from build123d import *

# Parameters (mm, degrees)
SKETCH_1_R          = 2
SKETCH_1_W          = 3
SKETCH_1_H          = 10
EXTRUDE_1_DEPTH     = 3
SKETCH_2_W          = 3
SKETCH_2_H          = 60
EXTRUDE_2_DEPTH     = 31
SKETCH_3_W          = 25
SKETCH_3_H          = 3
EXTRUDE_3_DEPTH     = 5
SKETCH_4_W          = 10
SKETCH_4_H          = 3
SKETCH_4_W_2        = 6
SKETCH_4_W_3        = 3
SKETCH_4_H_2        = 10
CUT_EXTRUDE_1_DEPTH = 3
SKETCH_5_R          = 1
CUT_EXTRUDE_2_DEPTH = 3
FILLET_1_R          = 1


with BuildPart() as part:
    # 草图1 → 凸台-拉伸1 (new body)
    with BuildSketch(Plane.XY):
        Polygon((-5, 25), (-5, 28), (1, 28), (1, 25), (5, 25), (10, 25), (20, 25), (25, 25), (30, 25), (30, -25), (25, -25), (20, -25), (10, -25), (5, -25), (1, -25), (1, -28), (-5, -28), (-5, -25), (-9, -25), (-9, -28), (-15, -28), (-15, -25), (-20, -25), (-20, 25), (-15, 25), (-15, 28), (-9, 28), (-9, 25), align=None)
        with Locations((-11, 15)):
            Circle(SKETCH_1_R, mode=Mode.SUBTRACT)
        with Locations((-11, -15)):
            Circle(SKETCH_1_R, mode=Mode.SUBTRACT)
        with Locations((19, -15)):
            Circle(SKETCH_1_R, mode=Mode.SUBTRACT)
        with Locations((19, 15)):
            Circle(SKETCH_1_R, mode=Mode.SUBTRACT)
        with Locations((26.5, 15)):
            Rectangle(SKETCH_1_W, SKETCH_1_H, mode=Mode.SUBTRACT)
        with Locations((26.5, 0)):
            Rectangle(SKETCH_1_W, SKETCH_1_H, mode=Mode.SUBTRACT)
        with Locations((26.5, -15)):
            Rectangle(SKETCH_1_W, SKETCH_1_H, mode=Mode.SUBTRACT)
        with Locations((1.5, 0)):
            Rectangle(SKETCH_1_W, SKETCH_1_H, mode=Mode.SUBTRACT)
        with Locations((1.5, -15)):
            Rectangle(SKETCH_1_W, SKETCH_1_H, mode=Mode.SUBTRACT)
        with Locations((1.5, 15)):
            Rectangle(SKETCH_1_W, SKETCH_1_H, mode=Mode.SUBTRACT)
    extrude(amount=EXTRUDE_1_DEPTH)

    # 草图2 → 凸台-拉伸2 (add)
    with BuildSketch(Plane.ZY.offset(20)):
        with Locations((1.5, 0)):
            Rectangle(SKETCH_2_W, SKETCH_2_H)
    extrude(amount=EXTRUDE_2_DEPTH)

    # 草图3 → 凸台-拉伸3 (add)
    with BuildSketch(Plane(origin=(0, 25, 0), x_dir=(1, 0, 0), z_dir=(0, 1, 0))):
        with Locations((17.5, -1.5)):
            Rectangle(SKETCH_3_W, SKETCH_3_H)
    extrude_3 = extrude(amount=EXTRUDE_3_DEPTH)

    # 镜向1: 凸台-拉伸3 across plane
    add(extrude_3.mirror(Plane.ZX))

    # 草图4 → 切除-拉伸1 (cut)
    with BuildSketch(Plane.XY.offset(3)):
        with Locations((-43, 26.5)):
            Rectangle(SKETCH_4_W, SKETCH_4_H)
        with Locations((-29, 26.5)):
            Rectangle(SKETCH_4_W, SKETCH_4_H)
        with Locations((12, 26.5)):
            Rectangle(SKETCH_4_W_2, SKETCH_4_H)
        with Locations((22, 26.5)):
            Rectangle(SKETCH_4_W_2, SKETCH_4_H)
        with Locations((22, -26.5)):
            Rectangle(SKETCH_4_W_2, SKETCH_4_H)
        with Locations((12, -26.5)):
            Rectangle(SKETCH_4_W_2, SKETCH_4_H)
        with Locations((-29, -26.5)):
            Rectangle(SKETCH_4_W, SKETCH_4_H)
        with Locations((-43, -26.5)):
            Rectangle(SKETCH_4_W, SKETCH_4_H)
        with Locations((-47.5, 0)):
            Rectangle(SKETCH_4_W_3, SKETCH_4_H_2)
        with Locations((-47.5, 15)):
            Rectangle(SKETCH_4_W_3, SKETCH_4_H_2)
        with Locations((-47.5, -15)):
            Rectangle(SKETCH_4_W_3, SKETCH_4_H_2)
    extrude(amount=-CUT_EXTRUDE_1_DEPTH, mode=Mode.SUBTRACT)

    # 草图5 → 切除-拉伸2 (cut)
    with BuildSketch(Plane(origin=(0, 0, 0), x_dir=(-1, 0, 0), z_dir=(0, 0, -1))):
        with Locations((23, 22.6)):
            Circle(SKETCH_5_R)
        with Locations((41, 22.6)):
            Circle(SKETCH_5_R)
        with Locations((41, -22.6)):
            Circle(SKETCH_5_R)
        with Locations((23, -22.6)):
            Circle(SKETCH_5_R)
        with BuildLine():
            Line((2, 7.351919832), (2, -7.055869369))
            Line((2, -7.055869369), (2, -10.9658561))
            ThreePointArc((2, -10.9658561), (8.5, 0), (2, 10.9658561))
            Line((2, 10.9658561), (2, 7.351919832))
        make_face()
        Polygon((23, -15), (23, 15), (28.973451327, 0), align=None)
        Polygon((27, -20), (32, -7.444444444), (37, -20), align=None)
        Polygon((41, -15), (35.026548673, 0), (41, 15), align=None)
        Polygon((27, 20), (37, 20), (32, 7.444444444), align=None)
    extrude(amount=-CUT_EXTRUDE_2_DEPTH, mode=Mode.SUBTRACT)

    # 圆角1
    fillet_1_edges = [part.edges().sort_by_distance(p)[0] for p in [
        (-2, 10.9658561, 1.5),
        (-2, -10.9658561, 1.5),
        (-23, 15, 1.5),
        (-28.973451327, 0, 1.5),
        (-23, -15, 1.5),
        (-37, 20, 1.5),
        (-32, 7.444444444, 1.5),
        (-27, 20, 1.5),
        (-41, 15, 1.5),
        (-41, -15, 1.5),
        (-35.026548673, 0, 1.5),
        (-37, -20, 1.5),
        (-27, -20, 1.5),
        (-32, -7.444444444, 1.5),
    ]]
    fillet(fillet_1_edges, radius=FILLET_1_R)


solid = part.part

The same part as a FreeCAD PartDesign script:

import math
import FreeCAD as App
import Part
import Sketcher


def edges_at(feature, points):
    """Names of the edges that pass closest to the given points."""
    edges = feature.Shape.Edges
    near = lambda p: min(range(len(edges)), key=lambda i: edges[i].distToShape(Part.Vertex(*p))[0])
    return sorted({f"Edge{near(p) + 1}" for p in points})

doc = App.newDocument("Part")
body = doc.addObject("PartDesign::Body", "Body")

# Sketch on XY plane
sketch1 = body.newObject("Sketcher::SketchObject", "Sketch")
sketch1.AttachmentSupport = (doc.getObject("XY_Plane"), [""])
sketch1.MapMode = "FlatFace"
sketch1.addGeometry([
    Part.LineSegment(App.Vector(-5, 28, 0), App.Vector(-5, 25, 0)),  # 0
    Part.LineSegment(App.Vector(-5, 25, 0), App.Vector(-9, 25, 0)),  # 1
    Part.LineSegment(App.Vector(-9, 25, 0), App.Vector(-9, 28, 0)),  # 2
    Part.LineSegment(App.Vector(-9, 28, 0), App.Vector(-15, 28, 0)),  # 3
    Part.LineSegment(App.Vector(-15, 28, 0), App.Vector(-15, 25, 0)),  # 4
    Part.LineSegment(App.Vector(-15, 25, 0), App.Vector(-20, 25, 0)),  # 5
    Part.LineSegment(App.Vector(-20, 25, 0), App.Vector(-20, -25, 0)),  # 6
    Part.LineSegment(App.Vector(-20, -25, 0), App.Vector(-15, -25, 0)),  # 7
    Part.LineSegment(App.Vector(-15, -25, 0), App.Vector(-15, -28, 0)),  # 8
    Part.LineSegment(App.Vector(-15, -28, 0), App.Vector(-9, -28, 0)),  # 9
    Part.LineSegment(App.Vector(-9, -28, 0), App.Vector(-9, -25, 0)),  # 10
    Part.LineSegment(App.Vector(-9, -25, 0), App.Vector(-5, -25, 0)),  # 11
    Part.LineSegment(App.Vector(-5, -25, 0), App.Vector(-5, -28, 0)),  # 12
    Part.LineSegment(App.Vector(-5, -28, 0), App.Vector(1, -28, 0)),  # 13
    Part.LineSegment(App.Vector(1, -28, 0), App.Vector(1, -25, 0)),  # 14
    Part.LineSegment(App.Vector(1, -25, 0), App.Vector(30, -25, 0)),  # 15
    Part.LineSegment(App.Vector(30, -25, 0), App.Vector(30, 25, 0)),  # 16
    Part.LineSegment(App.Vector(30, 25, 0), App.Vector(1, 25, 0)),  # 17
    Part.LineSegment(App.Vector(1, 25, 0), App.Vector(1, 28, 0)),  # 18
    Part.LineSegment(App.Vector(1, 28, 0), App.Vector(-5, 28, 0)),  # 19
    Part.LineSegment(App.Vector(25, -20, 0), App.Vector(25, -10, 0)),  # 20
    Part.LineSegment(App.Vector(25, -10, 0), App.Vector(28, -10, 0)),  # 21
    Part.LineSegment(App.Vector(28, -10, 0), App.Vector(28, -20, 0)),  # 22
    Part.LineSegment(App.Vector(28, -20, 0), App.Vector(25, -20, 0)),  # 23
    Part.Circle(App.Vector(19, -15, 0), App.Vector(0, 0, 1), 2),  # 24
    Part.LineSegment(App.Vector(0, -20, 0), App.Vector(0, -10, 0)),  # 25
    Part.LineSegment(App.Vector(0, -10, 0), App.Vector(3, -10, 0)),  # 26
    Part.LineSegment(App.Vector(3, -10, 0), App.Vector(3, -20, 0)),  # 27
    Part.LineSegment(App.Vector(3, -20, 0), App.Vector(0, -20, 0)),  # 28
    Part.Circle(App.Vector(-11, -15, 0), App.Vector(0, 0, 1), 2),  # 29
    Part.LineSegment(App.Vector(25, -5, 0), App.Vector(25, 5, 0)),  # 30
    Part.LineSegment(App.Vector(25, 5, 0), App.Vector(28, 5, 0)),  # 31
    Part.LineSegment(App.Vector(28, 5, 0), App.Vector(28, -5, 0)),  # 32
    Part.LineSegment(App.Vector(28, -5, 0), App.Vector(25, -5, 0)),  # 33
    Part.LineSegment(App.Vector(25, 10, 0), App.Vector(25, 20, 0)),  # 34
    Part.LineSegment(App.Vector(25, 20, 0), App.Vector(28, 20, 0)),  # 35
    Part.LineSegment(App.Vector(28, 20, 0), App.Vector(28, 10, 0)),  # 36
    Part.LineSegment(App.Vector(28, 10, 0), App.Vector(25, 10, 0)),  # 37
    Part.Circle(App.Vector(19, 15, 0), App.Vector(0, 0, 1), 2),  # 38
    Part.LineSegment(App.Vector(0, -5, 0), App.Vector(0, 5, 0)),  # 39
    Part.LineSegment(App.Vector(0, 5, 0), App.Vector(3, 5, 0)),  # 40
    Part.LineSegment(App.Vector(3, 5, 0), App.Vector(3, -5, 0)),  # 41
    Part.LineSegment(App.Vector(3, -5, 0), App.Vector(0, -5, 0)),  # 42
    Part.LineSegment(App.Vector(0, 10, 0), App.Vector(0, 20, 0)),  # 43
    Part.LineSegment(App.Vector(0, 20, 0), App.Vector(3, 20, 0)),  # 44
    Part.LineSegment(App.Vector(3, 20, 0), App.Vector(3, 10, 0)),  # 45
    Part.LineSegment(App.Vector(3, 10, 0), App.Vector(0, 10, 0)),  # 46
    Part.Circle(App.Vector(-11, 15, 0), App.Vector(0, 0, 1), 2),  # 47
], False)
sketch1.addConstraint([
    Sketcher.Constraint("Coincident", 0, 2, 1, 1),
    Sketcher.Constraint("Coincident", 1, 2, 2, 1),
    Sketcher.Constraint("Coincident", 2, 2, 3, 1),
    Sketcher.Constraint("Coincident", 3, 2, 4, 1),
    Sketcher.Constraint("Coincident", 4, 2, 5, 1),
    Sketcher.Constraint("Coincident", 5, 2, 6, 1),
    Sketcher.Constraint("Coincident", 6, 2, 7, 1),
    Sketcher.Constraint("Coincident", 7, 2, 8, 1),
    Sketcher.Constraint("Coincident", 8, 2, 9, 1),
    Sketcher.Constraint("Coincident", 9, 2, 10, 1),
    Sketcher.Constraint("Coincident", 10, 2, 11, 1),
    Sketcher.Constraint("Coincident", 11, 2, 12, 1),
    Sketcher.Constraint("Coincident", 12, 2, 13, 1),
    Sketcher.Constraint("Coincident", 13, 2, 14, 1),
    Sketcher.Constraint("Coincident", 14, 2, 15, 1),
    Sketcher.Constraint("Coincident", 15, 2, 16, 1),
    Sketcher.Constraint("Coincident", 16, 2, 17, 1),
    Sketcher.Constraint("Coincident", 17, 2, 18, 1),
    Sketcher.Constraint("Coincident", 18, 2, 19, 1),
    Sketcher.Constraint("Coincident", 19, 2, 0, 1),
    Sketcher.Constraint("Coincident", 20, 2, 21, 1),
    Sketcher.Constraint("Coincident", 21, 2, 22, 1),
    Sketcher.Constraint("Coincident", 22, 2, 23, 1),
    Sketcher.Constraint("Coincident", 23, 2, 20, 1),
    Sketcher.Constraint("Coincident", 25, 2, 26, 1),
    Sketcher.Constraint("Coincident", 26, 2, 27, 1),
    Sketcher.Constraint("Coincident", 27, 2, 28, 1),
    Sketcher.Constraint("Coincident", 28, 2, 25, 1),
    Sketcher.Constraint("Coincident", 30, 2, 31, 1),
    Sketcher.Constraint("Coincident", 31, 2, 32, 1),
    Sketcher.Constraint("Coincident", 32, 2, 33, 1),
    Sketcher.Constraint("Coincident", 33, 2, 30, 1),
    Sketcher.Constraint("Coincident", 34, 2, 35, 1),
    Sketcher.Constraint("Coincident", 35, 2, 36, 1),
    Sketcher.Constraint("Coincident", 36, 2, 37, 1),
    Sketcher.Constraint("Coincident", 37, 2, 34, 1),
    Sketcher.Constraint("Coincident", 39, 2, 40, 1),
    Sketcher.Constraint("Coincident", 40, 2, 41, 1),
    Sketcher.Constraint("Coincident", 41, 2, 42, 1),
    Sketcher.Constraint("Coincident", 42, 2, 39, 1),
    Sketcher.Constraint("Coincident", 43, 2, 44, 1),
    Sketcher.Constraint("Coincident", 44, 2, 45, 1),
    Sketcher.Constraint("Coincident", 45, 2, 46, 1),
    Sketcher.Constraint("Coincident", 46, 2, 43, 1),
    Sketcher.Constraint("Vertical", 0),
    Sketcher.Constraint("Horizontal", 1),
    Sketcher.Constraint("Vertical", 2),
    Sketcher.Constraint("Horizontal", 3),
    Sketcher.Constraint("Vertical", 4),
    Sketcher.Constraint("Horizontal", 5),
    Sketcher.Constraint("Vertical", 6),
    Sketcher.Constraint("Horizontal", 7),
    Sketcher.Constraint("Vertical", 8),
    Sketcher.Constraint("Horizontal", 9),
    Sketcher.Constraint("Vertical", 10),
    Sketcher.Constraint("Horizontal", 11),
    Sketcher.Constraint("Vertical", 12),
    Sketcher.Constraint("Horizontal", 13),
    Sketcher.Constraint("Vertical", 14),
    Sketcher.Constraint("Horizontal", 15),
    Sketcher.Constraint("Vertical", 16),
    Sketcher.Constraint("Horizontal", 17),
    Sketcher.Constraint("Vertical", 18),
    Sketcher.Constraint("Horizontal", 19),
    Sketcher.Constraint("Vertical", 20),
    Sketcher.Constraint("Horizontal", 21),
    Sketcher.Constraint("Vertical", 22),
    Sketcher.Constraint("Horizontal", 23),
    Sketcher.Constraint("Vertical", 25),
    Sketcher.Constraint("Horizontal", 26),
    Sketcher.Constraint("Vertical", 27),
    Sketcher.Constraint("Horizontal", 28),
    Sketcher.Constraint("Vertical", 30),
    Sketcher.Constraint("Horizontal", 31),
    Sketcher.Constraint("Vertical", 32),
    Sketcher.Constraint("Horizontal", 33),
    Sketcher.Constraint("Vertical", 34),
    Sketcher.Constraint("Horizontal", 35),
    Sketcher.Constraint("Vertical", 36),
    Sketcher.Constraint("Horizontal", 37),
    Sketcher.Constraint("Vertical", 39),
    Sketcher.Constraint("Horizontal", 40),
    Sketcher.Constraint("Vertical", 41),
    Sketcher.Constraint("Horizontal", 42),
    Sketcher.Constraint("Vertical", 43),
    Sketcher.Constraint("Horizontal", 44),
    Sketcher.Constraint("Vertical", 45),
    Sketcher.Constraint("Horizontal", 46),
    Sketcher.Constraint("Equal", 24, 29),
    Sketcher.Constraint("Equal", 29, 38),
    Sketcher.Constraint("Equal", 38, 47),
    Sketcher.Constraint("Symmetric", 39, 2, 42, 2, -1, 1),
    Sketcher.Constraint("Symmetric", 28, 2, 43, 2, -1, 1),
    Sketcher.Constraint("Symmetric", 24, 3, 38, 3, -1),
    Sketcher.Constraint("Symmetric", 29, 3, 47, 3, -1),
    Sketcher.Constraint("Symmetric", 4, 2, 7, 2, -1),
    Sketcher.Constraint("Symmetric", 2, 2, 9, 2, -1),
    Sketcher.Constraint("Symmetric", 0, 2, 11, 2, -1),
    Sketcher.Constraint("Symmetric", 14, 2, 17, 2, -1),
    Sketcher.Constraint("Symmetric", 23, 2, 34, 2, -1),
    Sketcher.Constraint("Symmetric", 21, 2, 36, 2, -1),
    Sketcher.Constraint("Symmetric", 26, 2, 45, 2, -1),
    Sketcher.Constraint("PointOnObject", 25, 2, -2),
    Sketcher.Constraint("Horizontal", 24, 3, 29, 3),
    Sketcher.Constraint("Horizontal", 1, 2, 4, 2),
    Sketcher.Constraint("Horizontal", 9, 2, 12, 2),
    Sketcher.Constraint("Horizontal", 11, 2, 14, 2),
    Sketcher.Constraint("Horizontal", 3, 2, 18, 2),
    Sketcher.Constraint("Horizontal", 21, 2, 25, 2),
    Sketcher.Constraint("Horizontal", 23, 2, 27, 2),
    Sketcher.Constraint("Horizontal", 31, 2, 39, 2),
    Sketcher.Constraint("Horizontal", 33, 2, 41, 2),
    Sketcher.Constraint("Vertical", 23, 2, 30, 2),
    Sketcher.Constraint("Vertical", 22, 2, 31, 2),
    Sketcher.Constraint("Vertical", 27, 2, 40, 2),
    Sketcher.Constraint("Equal", 9, 13),
    Sketcher.Constraint("Equal", 23, 26),
    Sketcher.Constraint("Equal", 46, 0),
    Sketcher.Constraint("Equal", 27, 30),
    Sketcher.Constraint("Diameter", 24, 4.0),
    Sketcher.Constraint("DistanceX", 1, 2, 1, 1, 4.0),
    Sketcher.Constraint("DistanceX", 3, 2, 3, 1, 6.0),
    Sketcher.Constraint("DistanceX", 5, 2, 5, 1, 5.0),
    Sketcher.Constraint("DistanceX", 15, 1, 15, 2, 29.0),
    Sketcher.Constraint("DistanceX", 21, 1, 21, 2, 3.0),
    Sketcher.Constraint("DistanceY", 6, 2, 6, 1, 50.0),
    Sketcher.Constraint("DistanceY", 20, 1, 20, 2, 10.0),
    Sketcher.Constraint("DistanceX", -1, 1, 24, 3, 19.0),
    Sketcher.Constraint("DistanceY", 24, 3, -1, 1, 15.0),
    Sketcher.Constraint("DistanceX", 29, 3, -1, 1, 11.0),
    Sketcher.Constraint("DistanceX", 0, 2, -1, 1, 5.0),
    Sketcher.Constraint("DistanceX", -1, 1, 20, 2, 25.0),
    Sketcher.Constraint("DistanceY", 20, 2, -1, 1, 10.0),
])
pad1 = body.newObject("PartDesign::Pad", "Pad")
pad1.Profile = sketch1
pad1.Length = 3

# Sketch on YZ plane
sketch2 = body.newObject("Sketcher::SketchObject", "Sketch001")
sketch2.AttachmentSupport = (doc.getObject("YZ_Plane"), [""])
sketch2.MapMode = "FlatFace"
sketch2.AttachmentOffset = App.Placement(App.Vector(0, 0, -20), App.Rotation())
sketch2.addGeometry([
    Part.LineSegment(App.Vector(30, 0, 0), App.Vector(-30, 0, 0)),
    Part.LineSegment(App.Vector(-30, 0, 0), App.Vector(-30, 3, 0)),
    Part.LineSegment(App.Vector(-30, 3, 0), App.Vector(30, 3, 0)),
    Part.LineSegment(App.Vector(30, 3, 0), App.Vector(30, 0, 0)),
], False)
sketch2.addConstraint([
    Sketcher.Constraint("Coincident", 0, 2, 1, 1),
    Sketcher.Constraint("Coincident", 1, 2, 2, 1),
    Sketcher.Constraint("Coincident", 2, 2, 3, 1),
    Sketcher.Constraint("Coincident", 3, 2, 0, 1),
    Sketcher.Constraint("Horizontal", 0),
    Sketcher.Constraint("Vertical", 1),
    Sketcher.Constraint("Horizontal", 2),
    Sketcher.Constraint("Vertical", 3),
    Sketcher.Constraint("Symmetric", 0, 2, 3, 2, -1, 1),
    Sketcher.Constraint("DistanceX", 0, 2, 0, 1, 60.0),
    Sketcher.Constraint("DistanceY", 1, 1, 1, 2, 3.0),
])
pad2 = body.newObject("PartDesign::Pad", "Pad001")
pad2.Profile = sketch2
pad2.Length = 31
pad2.Reversed = True

# Sketch on XZ plane
sketch3 = body.newObject("Sketcher::SketchObject", "Sketch002")
sketch3.AttachmentSupport = (doc.getObject("XZ_Plane"), [""])
sketch3.MapMode = "FlatFace"
sketch3.AttachmentOffset = App.Placement(App.Vector(0, 0, -25), App.Rotation())
sketch3.addGeometry([
    Part.LineSegment(App.Vector(5, 0, 0), App.Vector(5, 3, 0)),
    Part.LineSegment(App.Vector(5, 3, 0), App.Vector(30, 3, 0)),
    Part.LineSegment(App.Vector(30, 3, 0), App.Vector(30, 0, 0)),
    Part.LineSegment(App.Vector(30, 0, 0), App.Vector(5, 0, 0)),
], False)
sketch3.addConstraint([
    Sketcher.Constraint("Coincident", 0, 2, 1, 1),
    Sketcher.Constraint("Coincident", 1, 2, 2, 1),
    Sketcher.Constraint("Coincident", 2, 2, 3, 1),
    Sketcher.Constraint("Coincident", 3, 2, 0, 1),
    Sketcher.Constraint("Vertical", 0),
    Sketcher.Constraint("Horizontal", 1),
    Sketcher.Constraint("Vertical", 2),
    Sketcher.Constraint("Horizontal", 3),
    Sketcher.Constraint("PointOnObject", 2, 2, -1),
    Sketcher.Constraint("DistanceX", 1, 1, 1, 2, 25.0),
    Sketcher.Constraint("DistanceY", 0, 1, 0, 2, 3.0),
    Sketcher.Constraint("DistanceX", -1, 1, 0, 2, 5.0),
])
pad3 = body.newObject("PartDesign::Pad", "Pad002")
pad3.Profile = sketch3
pad3.Length = 5
pad3.Reversed = True
doc.recompute()

mirrored = body.newObject("PartDesign::Mirrored", "Mirrored")
mirrored.Originals = [pad3]
mirrored.MirrorPlane = (doc.getObject("XZ_Plane"), [""])
body.Tip = mirrored

# Sketch on XY plane
sketch4 = body.newObject("Sketcher::SketchObject", "Sketch003")
sketch4.AttachmentSupport = (doc.getObject("XY_Plane"), [""])
sketch4.MapMode = "FlatFace"
sketch4.AttachmentOffset = App.Placement(App.Vector(0, 0, 3), App.Rotation())
sketch4.addGeometry([
    Part.LineSegment(App.Vector(-48, 28, 0), App.Vector(-48, 25, 0)),  # 0
    Part.LineSegment(App.Vector(-48, 25, 0), App.Vector(-38, 25, 0)),  # 1
    Part.LineSegment(App.Vector(-38, 25, 0), App.Vector(-38, 28, 0)),  # 2
    Part.LineSegment(App.Vector(-38, 28, 0), App.Vector(-48, 28, 0)),  # 3
    Part.LineSegment(App.Vector(-34, 28, 0), App.Vector(-34, 25, 0)),  # 4
    Part.LineSegment(App.Vector(-34, 25, 0), App.Vector(-24, 25, 0)),  # 5
    Part.LineSegment(App.Vector(-24, 25, 0), App.Vector(-24, 28, 0)),  # 6
    Part.LineSegment(App.Vector(-24, 28, 0), App.Vector(-34, 28, 0)),  # 7
    Part.LineSegment(App.Vector(9, 28, 0), App.Vector(9, 25, 0)),  # 8
    Part.LineSegment(App.Vector(9, 25, 0), App.Vector(15, 25, 0)),  # 9
    Part.LineSegment(App.Vector(15, 25, 0), App.Vector(15, 28, 0)),  # 10
    Part.LineSegment(App.Vector(15, 28, 0), App.Vector(9, 28, 0)),  # 11
    Part.LineSegment(App.Vector(19, 28, 0), App.Vector(19, 25, 0)),  # 12
    Part.LineSegment(App.Vector(19, 25, 0), App.Vector(25, 25, 0)),  # 13
    Part.LineSegment(App.Vector(25, 25, 0), App.Vector(25, 28, 0)),  # 14
    Part.LineSegment(App.Vector(25, 28, 0), App.Vector(19, 28, 0)),  # 15
    Part.LineSegment(App.Vector(19, -25, 0), App.Vector(19, -28, 0)),  # 16
    Part.LineSegment(App.Vector(19, -28, 0), App.Vector(25, -28, 0)),  # 17
    Part.LineSegment(App.Vector(25, -28, 0), App.Vector(25, -25, 0)),  # 18
    Part.LineSegment(App.Vector(25, -25, 0), App.Vector(19, -25, 0)),  # 19
    Part.LineSegment(App.Vector(9, -25, 0), App.Vector(9, -28, 0)),  # 20
    Part.LineSegment(App.Vector(9, -28, 0), App.Vector(15, -28, 0)),  # 21
    Part.LineSegment(App.Vector(15, -28, 0), App.Vector(15, -25, 0)),  # 22
    Part.LineSegment(App.Vector(15, -25, 0), App.Vector(9, -25, 0)),  # 23
    Part.LineSegment(App.Vector(-34, -25, 0), App.Vector(-34, -28, 0)),  # 24
    Part.LineSegment(App.Vector(-34, -28, 0), App.Vector(-24, -28, 0)),  # 25
    Part.LineSegment(App.Vector(-24, -28, 0), App.Vector(-24, -25, 0)),  # 26
    Part.LineSegment(App.Vector(-24, -25, 0), App.Vector(-34, -25, 0)),  # 27
    Part.LineSegment(App.Vector(-48, -25, 0), App.Vector(-48, -28, 0)),  # 28
    Part.LineSegment(App.Vector(-48, -28, 0), App.Vector(-38, -28, 0)),  # 29
    Part.LineSegment(App.Vector(-38, -28, 0), App.Vector(-38, -25, 0)),  # 30
    Part.LineSegment(App.Vector(-38, -25, 0), App.Vector(-48, -25, 0)),  # 31
    Part.LineSegment(App.Vector(-49, 5, 0), App.Vector(-49, -5, 0)),  # 32
    Part.LineSegment(App.Vector(-49, -5, 0), App.Vector(-46, -5, 0)),  # 33
    Part.LineSegment(App.Vector(-46, -5, 0), App.Vector(-46, 5, 0)),  # 34
    Part.LineSegment(App.Vector(-46, 5, 0), App.Vector(-49, 5, 0)),  # 35
    Part.LineSegment(App.Vector(-49, 20, 0), App.Vector(-49, 10, 0)),  # 36
    Part.LineSegment(App.Vector(-49, 10, 0), App.Vector(-46, 10, 0)),  # 37
    Part.LineSegment(App.Vector(-46, 10, 0), App.Vector(-46, 20, 0)),  # 38
    Part.LineSegment(App.Vector(-46, 20, 0), App.Vector(-49, 20, 0)),  # 39
    Part.LineSegment(App.Vector(-49, -10, 0), App.Vector(-49, -20, 0)),  # 40
    Part.LineSegment(App.Vector(-49, -20, 0), App.Vector(-46, -20, 0)),  # 41
    Part.LineSegment(App.Vector(-46, -20, 0), App.Vector(-46, -10, 0)),  # 42
    Part.LineSegment(App.Vector(-46, -10, 0), App.Vector(-49, -10, 0)),  # 43
], False)
sketch4.addConstraint([
    Sketcher.Constraint("Coincident", 0, 2, 1, 1),
    Sketcher.Constraint("Coincident", 1, 2, 2, 1),
    Sketcher.Constraint("Coincident", 2, 2, 3, 1),
    Sketcher.Constraint("Coincident", 3, 2, 0, 1),
    Sketcher.Constraint("Coincident", 4, 2, 5, 1),
    Sketcher.Constraint("Coincident", 5, 2, 6, 1),
    Sketcher.Constraint("Coincident", 6, 2, 7, 1),
    Sketcher.Constraint("Coincident", 7, 2, 4, 1),
    Sketcher.Constraint("Coincident", 8, 2, 9, 1),
    Sketcher.Constraint("Coincident", 9, 2, 10, 1),
    Sketcher.Constraint("Coincident", 10, 2, 11, 1),
    Sketcher.Constraint("Coincident", 11, 2, 8, 1),
    Sketcher.Constraint("Coincident", 12, 2, 13, 1),
    Sketcher.Constraint("Coincident", 13, 2, 14, 1),
    Sketcher.Constraint("Coincident", 14, 2, 15, 1),
    Sketcher.Constraint("Coincident", 15, 2, 12, 1),
    Sketcher.Constraint("Coincident", 16, 2, 17, 1),
    Sketcher.Constraint("Coincident", 17, 2, 18, 1),
    Sketcher.Constraint("Coincident", 18, 2, 19, 1),
    Sketcher.Constraint("Coincident", 19, 2, 16, 1),
    Sketcher.Constraint("Coincident", 20, 2, 21, 1),
    Sketcher.Constraint("Coincident", 21, 2, 22, 1),
    Sketcher.Constraint("Coincident", 22, 2, 23, 1),
    Sketcher.Constraint("Coincident", 23, 2, 20, 1),
    Sketcher.Constraint("Coincident", 24, 2, 25, 1),
    Sketcher.Constraint("Coincident", 25, 2, 26, 1),
    Sketcher.Constraint("Coincident", 26, 2, 27, 1),
    Sketcher.Constraint("Coincident", 27, 2, 24, 1),
    Sketcher.Constraint("Coincident", 28, 2, 29, 1),
    Sketcher.Constraint("Coincident", 29, 2, 30, 1),
    Sketcher.Constraint("Coincident", 30, 2, 31, 1),
    Sketcher.Constraint("Coincident", 31, 2, 28, 1),
    Sketcher.Constraint("Coincident", 32, 2, 33, 1),
    Sketcher.Constraint("Coincident", 33, 2, 34, 1),
    Sketcher.Constraint("Coincident", 34, 2, 35, 1),
    Sketcher.Constraint("Coincident", 35, 2, 32, 1),
    Sketcher.Constraint("Coincident", 36, 2, 37, 1),
    Sketcher.Constraint("Coincident", 37, 2, 38, 1),
    Sketcher.Constraint("Coincident", 38, 2, 39, 1),
    Sketcher.Constraint("Coincident", 39, 2, 36, 1),
    Sketcher.Constraint("Coincident", 40, 2, 41, 1),
    Sketcher.Constraint("Coincident", 41, 2, 42, 1),
    Sketcher.Constraint("Coincident", 42, 2, 43, 1),
    Sketcher.Constraint("Coincident", 43, 2, 40, 1),
    Sketcher.Constraint("Vertical", 0),
    Sketcher.Constraint("Horizontal", 1),
    Sketcher.Constraint("Vertical", 2),
    Sketcher.Constraint("Horizontal", 3),
    Sketcher.Constraint("Vertical", 4),
    Sketcher.Constraint("Horizontal", 5),
    Sketcher.Constraint("Vertical", 6),
    Sketcher.Constraint("Horizontal", 7),
    Sketcher.Constraint("Vertical", 8),
    Sketcher.Constraint("Horizontal", 9),
    Sketcher.Constraint("Vertical", 10),
    Sketcher.Constraint("Horizontal", 11),
    Sketcher.Constraint("Vertical", 12),
    Sketcher.Constraint("Horizontal", 13),
    Sketcher.Constraint("Vertical", 14),
    Sketcher.Constraint("Horizontal", 15),
    Sketcher.Constraint("Vertical", 16),
    Sketcher.Constraint("Horizontal", 17),
    Sketcher.Constraint("Vertical", 18),
    Sketcher.Constraint("Horizontal", 19),
    Sketcher.Constraint("Vertical", 20),
    Sketcher.Constraint("Horizontal", 21),
    Sketcher.Constraint("Vertical", 22),
    Sketcher.Constraint("Horizontal", 23),
    Sketcher.Constraint("Vertical", 24),
    Sketcher.Constraint("Horizontal", 25),
    Sketcher.Constraint("Vertical", 26),
    Sketcher.Constraint("Horizontal", 27),
    Sketcher.Constraint("Vertical", 28),
    Sketcher.Constraint("Horizontal", 29),
    Sketcher.Constraint("Vertical", 30),
    Sketcher.Constraint("Horizontal", 31),
    Sketcher.Constraint("Vertical", 32),
    Sketcher.Constraint("Horizontal", 33),
    Sketcher.Constraint("Vertical", 34),
    Sketcher.Constraint("Horizontal", 35),
    Sketcher.Constraint("Vertical", 36),
    Sketcher.Constraint("Horizontal", 37),
    Sketcher.Constraint("Vertical", 38),
    Sketcher.Constraint("Horizontal", 39),
    Sketcher.Constraint("Vertical", 40),
    Sketcher.Constraint("Horizontal", 41),
    Sketcher.Constraint("Vertical", 42),
    Sketcher.Constraint("Horizontal", 43),
    Sketcher.Constraint("Symmetric", 15, 2, 16, 2, -1),
    Sketcher.Constraint("Symmetric", 13, 2, 18, 2, -1),
    Sketcher.Constraint("Symmetric", 11, 2, 20, 2, -1),
    Sketcher.Constraint("Symmetric", 9, 2, 22, 2, -1),
    Sketcher.Constraint("Symmetric", 7, 2, 24, 2, -1),
    Sketcher.Constraint("Symmetric", 5, 2, 26, 2, -1),
    Sketcher.Constraint("Symmetric", 3, 2, 28, 2, -1),
    Sketcher.Constraint("Symmetric", 1, 2, 30, 2, -1),
    Sketcher.Constraint("Symmetric", 39, 2, 40, 2, -1),
    Sketcher.Constraint("Symmetric", 37, 2, 42, 2, -1),
    Sketcher.Constraint("Horizontal", 1, 2, 4, 2),
    Sketcher.Constraint("Horizontal", 3, 2, 6, 2),
    Sketcher.Constraint("Horizontal", 5, 2, 8, 2),
    Sketcher.Constraint("Horizontal", 7, 2, 10, 2),
    Sketcher.Constraint("Horizontal", 9, 2, 12, 2),
    Sketcher.Constraint("Horizontal", 11, 2, 14, 2),
    Sketcher.Constraint("Vertical", 35, 2, 36, 2),
    Sketcher.Constraint("Vertical", 34, 2, 37, 2),
    Sketcher.Constraint("Equal", 3, 5),
    Sketcher.Constraint("Equal", 11, 13),
    Sketcher.Constraint("Equal", 43, 0),
    Sketcher.Constraint("Equal", 31, 32),
    Sketcher.Constraint("Equal", 34, 36),
    Sketcher.Constraint("DistanceX", 1, 1, 1, 2, 10.0),
    Sketcher.Constraint("DistanceX", 9, 1, 9, 2, 6.0),
    Sketcher.Constraint("DistanceX", 33, 1, 33, 2, 3.0),
    Sketcher.Constraint("DistanceX", 0, 2, -1, 1, 48.0),
    Sketcher.Constraint("DistanceY", -1, 1, 0, 2, 25.0),
    Sketcher.Constraint("DistanceX", 4, 2, -1, 1, 34.0),
    Sketcher.Constraint("DistanceX", -1, 1, 8, 2, 9.0),
    Sketcher.Constraint("DistanceX", -1, 1, 12, 2, 19.0),
    Sketcher.Constraint("DistanceX", 32, 2, -1, 1, 49.0),
    Sketcher.Constraint("DistanceY", 32, 2, -1, 1, 5.0),
    Sketcher.Constraint("DistanceY", -1, 1, 36, 2, 10.0),
])
pocket1 = body.newObject("PartDesign::Pocket", "Pocket")
pocket1.Profile = sketch4
pocket1.Length = 3

# Sketch on XY plane
sketch5 = body.newObject("Sketcher::SketchObject", "Sketch004")
sketch5.AttachmentSupport = (doc.getObject("XY_Plane"), [""])
sketch5.MapMode = "FlatFace"
sketch5.addGeometry([
    Part.Circle(App.Vector(-23, 22.6, 0), App.Vector(0, 0, 1), 1),  # 0
    Part.Circle(App.Vector(-41, 22.6, 0), App.Vector(0, 0, 1), 1),  # 1
    Part.Circle(App.Vector(-41, -22.6, 0), App.Vector(0, 0, 1), 1),  # 2
    Part.Circle(App.Vector(-23, -22.6, 0), App.Vector(0, 0, 1), 1),  # 3
    Part.ArcOfCircle(Part.Circle(App.Vector(4, 0, 0), App.Vector(0, 0, 1), 12.5), math.radians(119), math.radians(241)),  # 4
    Part.LineSegment(App.Vector(-2, 11, 0), App.Vector(-2, -11, 0)),  # 5
    Part.LineSegment(App.Vector(-23, 15, 0), App.Vector(-23, -15, 0)),  # 6
    Part.LineSegment(App.Vector(-23, -15, 0), App.Vector(-29, 0, 0)),  # 7
    Part.LineSegment(App.Vector(-29, 0, 0), App.Vector(-23, 15, 0)),  # 8
    Part.LineSegment(App.Vector(-32, -7.4, 0), App.Vector(-27, -20, 0)),  # 9
    Part.LineSegment(App.Vector(-27, -20, 0), App.Vector(-37, -20, 0)),  # 10
    Part.LineSegment(App.Vector(-37, -20, 0), App.Vector(-32, -7.4, 0)),  # 11
    Part.LineSegment(App.Vector(-35, 0, 0), App.Vector(-41, -15, 0)),  # 12
    Part.LineSegment(App.Vector(-41, -15, 0), App.Vector(-41, 15, 0)),  # 13
    Part.LineSegment(App.Vector(-41, 15, 0), App.Vector(-35, 0, 0)),  # 14
    Part.LineSegment(App.Vector(-37, 20, 0), App.Vector(-27, 20, 0)),  # 15
    Part.LineSegment(App.Vector(-27, 20, 0), App.Vector(-32, 7.4, 0)),  # 16
    Part.LineSegment(App.Vector(-32, 7.4, 0), App.Vector(-37, 20, 0)),  # 17
], False)
sketch5.addConstraint([
    Sketcher.Constraint("Coincident", 4, 1, 5, 1),
    Sketcher.Constraint("Coincident", 5, 2, 4, 2),
    Sketcher.Constraint("Coincident", 6, 2, 7, 1),
    Sketcher.Constraint("Coincident", 7, 2, 8, 1),
    Sketcher.Constraint("Coincident", 8, 2, 6, 1),
    Sketcher.Constraint("Coincident", 9, 2, 10, 1),
    Sketcher.Constraint("Coincident", 10, 2, 11, 1),
    Sketcher.Constraint("Coincident", 11, 2, 9, 1),
    Sketcher.Constraint("Coincident", 12, 2, 13, 1),
    Sketcher.Constraint("Coincident", 13, 2, 14, 1),
    Sketcher.Constraint("Coincident", 14, 2, 12, 1),
    Sketcher.Constraint("Coincident", 15, 2, 16, 1),
    Sketcher.Constraint("Coincident", 16, 2, 17, 1),
    Sketcher.Constraint("Coincident", 17, 2, 15, 1),
    Sketcher.Constraint("Vertical", 5),
    Sketcher.Constraint("Vertical", 6),
    Sketcher.Constraint("Horizontal", 10),
    Sketcher.Constraint("Vertical", 13),
    Sketcher.Constraint("Horizontal", 15),
    Sketcher.Constraint("Equal", 0, 1),
    Sketcher.Constraint("Equal", 1, 2),
    Sketcher.Constraint("Equal", 2, 3),
    Sketcher.Constraint("Symmetric", 1, 3, 2, 3, -1),
    Sketcher.Constraint("Symmetric", 0, 3, 3, 3, -1),
    Sketcher.Constraint("Symmetric", 9, 2, 15, 2, -1),
    Sketcher.Constraint("Symmetric", 11, 2, 16, 2, -1),
    Sketcher.Constraint("PointOnObject", 4, 3, -1),
    Sketcher.Constraint("PointOnObject", 7, 2, -1),
    Sketcher.Constraint("PointOnObject", 14, 2, -1),
    Sketcher.Constraint("Parallel", 7, 9),
    Sketcher.Constraint("Parallel", 8, 11),
    Sketcher.Constraint("Parallel", 11, 12),
    Sketcher.Constraint("Parallel", 9, 14),
    Sketcher.Constraint("Parallel", 12, 16),
    Sketcher.Constraint("Parallel", 14, 17),
    Sketcher.Constraint("Horizontal", 0, 3, 1, 3),
    Sketcher.Constraint("Horizontal", 6, 2, 12, 2),
    Sketcher.Constraint("Vertical", 3, 3, 6, 2),
    Sketcher.Constraint("Vertical", 2, 3, 12, 2),
    Sketcher.Constraint("Diameter", 0, 2.0),
    Sketcher.Constraint("Radius", 4, 12.5),
    Sketcher.Constraint("DistanceX", 10, 2, 10, 1, 10.0),
    Sketcher.Constraint("DistanceY", 6, 2, 6, 1, 30.0),
    Sketcher.Constraint("DistanceX", 0, 3, -1, 1, 23.0),
    Sketcher.Constraint("DistanceX", 1, 3, -1, 1, 41.0),
    Sketcher.Constraint("DistanceX", -1, 1, 4, 3, 4.0),
    Sketcher.Constraint("DistanceX", 4, 1, -1, 1, 2.0),
    Sketcher.Constraint("DistanceX", 9, 2, -1, 1, 27.0),
    Sketcher.Constraint("DistanceY", 9, 2, -1, 1, 20.0),
    Sketcher.Constraint("DistanceY", -1, 1, 0, 3, 22.6),
    Sketcher.Constraint("Distance", 9, 13.51451),
])
pocket2 = body.newObject("PartDesign::Pocket", "Pocket001")
pocket2.Profile = sketch5
pocket2.Length = 3
pocket2.Reversed = True
doc.recompute()

fillet = body.newObject("PartDesign::Fillet", "Fillet")
fillet.Base = (pocket2, edges_at(pocket2, [
    (-2, 10.966, 1.5),
    (-2, -10.966, 1.5),
    (-23, 15, 1.5),
    (-28.973, 0, 1.5),
    (-23, -15, 1.5),
    (-37, 20, 1.5),
    (-32, 7.444, 1.5),
    (-27, 20, 1.5),
    (-41, 15, 1.5),
    (-41, -15, 1.5),
    (-35.027, 0, 1.5),
    (-37, -20, 1.5),
    (-27, -20, 1.5),
    (-32, -7.444, 1.5),
]))
fillet.Radius = 1

doc.recompute()
